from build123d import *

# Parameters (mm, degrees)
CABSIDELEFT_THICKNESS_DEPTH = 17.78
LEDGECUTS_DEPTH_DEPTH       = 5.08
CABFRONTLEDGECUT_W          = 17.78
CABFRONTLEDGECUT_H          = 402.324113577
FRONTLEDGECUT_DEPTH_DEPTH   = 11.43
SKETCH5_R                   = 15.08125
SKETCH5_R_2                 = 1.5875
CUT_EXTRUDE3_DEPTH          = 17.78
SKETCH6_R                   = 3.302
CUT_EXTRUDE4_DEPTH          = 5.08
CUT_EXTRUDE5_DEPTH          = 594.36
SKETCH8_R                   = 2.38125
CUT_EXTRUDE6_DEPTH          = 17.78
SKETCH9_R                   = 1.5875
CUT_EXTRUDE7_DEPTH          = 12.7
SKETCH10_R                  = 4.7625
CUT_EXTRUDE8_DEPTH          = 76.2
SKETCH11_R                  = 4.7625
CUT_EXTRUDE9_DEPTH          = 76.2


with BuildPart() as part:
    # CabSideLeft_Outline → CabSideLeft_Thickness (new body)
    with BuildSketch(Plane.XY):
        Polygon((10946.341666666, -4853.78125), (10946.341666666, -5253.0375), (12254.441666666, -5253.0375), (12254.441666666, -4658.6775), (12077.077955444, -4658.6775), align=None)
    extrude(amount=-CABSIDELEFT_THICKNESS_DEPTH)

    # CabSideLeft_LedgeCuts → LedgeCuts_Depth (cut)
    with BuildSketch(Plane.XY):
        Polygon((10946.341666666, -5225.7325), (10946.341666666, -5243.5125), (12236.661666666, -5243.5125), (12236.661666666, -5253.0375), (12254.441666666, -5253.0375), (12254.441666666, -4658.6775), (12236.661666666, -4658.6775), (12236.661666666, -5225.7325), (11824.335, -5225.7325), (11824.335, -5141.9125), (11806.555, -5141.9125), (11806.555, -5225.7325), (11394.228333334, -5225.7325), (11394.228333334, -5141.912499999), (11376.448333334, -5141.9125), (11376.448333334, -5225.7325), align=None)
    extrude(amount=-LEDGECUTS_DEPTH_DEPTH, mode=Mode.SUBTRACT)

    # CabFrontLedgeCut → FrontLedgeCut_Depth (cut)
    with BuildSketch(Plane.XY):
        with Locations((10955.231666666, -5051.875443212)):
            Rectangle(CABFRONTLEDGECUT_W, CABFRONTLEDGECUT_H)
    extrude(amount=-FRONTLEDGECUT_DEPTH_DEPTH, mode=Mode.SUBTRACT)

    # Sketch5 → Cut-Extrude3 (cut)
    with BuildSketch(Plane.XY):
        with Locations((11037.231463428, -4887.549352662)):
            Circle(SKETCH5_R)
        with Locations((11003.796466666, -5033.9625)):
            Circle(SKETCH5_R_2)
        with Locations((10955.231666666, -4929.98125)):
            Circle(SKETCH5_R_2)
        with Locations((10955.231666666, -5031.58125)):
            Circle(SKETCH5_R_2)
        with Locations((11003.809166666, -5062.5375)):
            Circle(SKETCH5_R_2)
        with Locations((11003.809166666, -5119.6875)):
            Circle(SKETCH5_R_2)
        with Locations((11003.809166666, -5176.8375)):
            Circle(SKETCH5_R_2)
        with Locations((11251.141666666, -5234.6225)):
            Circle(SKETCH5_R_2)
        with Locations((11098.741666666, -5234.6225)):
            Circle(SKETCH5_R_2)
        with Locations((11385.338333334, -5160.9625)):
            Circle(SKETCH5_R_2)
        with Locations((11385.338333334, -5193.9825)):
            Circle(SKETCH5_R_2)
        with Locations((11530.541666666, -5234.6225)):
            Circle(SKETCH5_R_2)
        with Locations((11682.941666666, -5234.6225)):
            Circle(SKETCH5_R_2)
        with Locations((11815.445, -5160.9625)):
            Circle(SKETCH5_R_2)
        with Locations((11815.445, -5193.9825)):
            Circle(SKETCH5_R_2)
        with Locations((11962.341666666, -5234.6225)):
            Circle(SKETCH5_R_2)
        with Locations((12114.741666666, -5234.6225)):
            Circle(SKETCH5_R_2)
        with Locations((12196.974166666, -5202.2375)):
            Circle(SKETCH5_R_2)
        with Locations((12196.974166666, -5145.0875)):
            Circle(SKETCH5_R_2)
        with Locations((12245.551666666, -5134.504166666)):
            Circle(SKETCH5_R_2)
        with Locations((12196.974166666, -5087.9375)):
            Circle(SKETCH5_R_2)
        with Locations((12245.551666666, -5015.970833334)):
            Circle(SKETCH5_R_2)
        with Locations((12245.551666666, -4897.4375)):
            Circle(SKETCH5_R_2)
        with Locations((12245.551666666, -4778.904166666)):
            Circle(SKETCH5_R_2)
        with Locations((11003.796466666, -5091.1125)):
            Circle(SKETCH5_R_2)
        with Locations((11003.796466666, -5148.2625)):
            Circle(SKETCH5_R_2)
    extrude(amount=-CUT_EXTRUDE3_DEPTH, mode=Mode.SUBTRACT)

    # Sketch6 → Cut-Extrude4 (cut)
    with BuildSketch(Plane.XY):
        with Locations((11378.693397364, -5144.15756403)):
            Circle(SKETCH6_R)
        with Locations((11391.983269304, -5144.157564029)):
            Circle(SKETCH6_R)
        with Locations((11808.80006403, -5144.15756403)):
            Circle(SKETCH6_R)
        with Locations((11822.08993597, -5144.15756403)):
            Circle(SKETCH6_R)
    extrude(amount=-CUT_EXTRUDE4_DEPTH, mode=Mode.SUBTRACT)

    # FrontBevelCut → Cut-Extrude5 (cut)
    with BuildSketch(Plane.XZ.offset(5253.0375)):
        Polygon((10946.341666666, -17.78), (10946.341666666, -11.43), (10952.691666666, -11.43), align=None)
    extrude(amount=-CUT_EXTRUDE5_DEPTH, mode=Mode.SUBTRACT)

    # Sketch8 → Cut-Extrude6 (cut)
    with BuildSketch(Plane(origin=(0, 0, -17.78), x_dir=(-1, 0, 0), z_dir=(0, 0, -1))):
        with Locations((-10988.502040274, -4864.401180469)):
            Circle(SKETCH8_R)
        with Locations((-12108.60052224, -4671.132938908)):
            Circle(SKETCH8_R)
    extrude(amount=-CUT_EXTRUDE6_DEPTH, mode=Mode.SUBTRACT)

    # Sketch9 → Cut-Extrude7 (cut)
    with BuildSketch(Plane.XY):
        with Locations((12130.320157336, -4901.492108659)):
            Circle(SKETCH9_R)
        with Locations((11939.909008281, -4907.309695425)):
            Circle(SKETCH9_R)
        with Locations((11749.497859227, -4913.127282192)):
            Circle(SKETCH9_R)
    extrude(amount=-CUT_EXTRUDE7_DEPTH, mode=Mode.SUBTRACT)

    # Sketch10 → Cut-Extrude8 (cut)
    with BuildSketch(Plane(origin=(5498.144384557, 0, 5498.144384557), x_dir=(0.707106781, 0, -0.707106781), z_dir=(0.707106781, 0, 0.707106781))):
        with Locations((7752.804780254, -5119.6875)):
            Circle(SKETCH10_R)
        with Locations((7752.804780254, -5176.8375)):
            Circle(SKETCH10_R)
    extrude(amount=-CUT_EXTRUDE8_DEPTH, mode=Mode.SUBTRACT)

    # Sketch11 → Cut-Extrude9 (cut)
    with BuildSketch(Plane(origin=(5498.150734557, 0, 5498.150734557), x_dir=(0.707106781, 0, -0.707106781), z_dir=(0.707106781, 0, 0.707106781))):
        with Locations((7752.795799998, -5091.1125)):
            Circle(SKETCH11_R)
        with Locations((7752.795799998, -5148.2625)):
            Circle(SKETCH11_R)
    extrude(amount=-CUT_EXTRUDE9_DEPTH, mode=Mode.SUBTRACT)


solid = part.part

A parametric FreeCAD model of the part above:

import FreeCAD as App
import Part
import Sketcher
Q = App.Units.Quantity

doc = App.newDocument("Part")
body = doc.addObject("PartDesign::Body", "Body")

sketch1 = doc.addObject("Sketcher::SketchObject", "Sketch")
body.addObject(sketch1)
sketch1.AttachmentSupport = (doc.XY_Plane, [""])
sketch1.MapMode = "FlatFace"
sketch1.addGeometry([
    Part.LineSegment(App.Vector(10946, -4854, 0), App.Vector(10946, -5253, 0)),
    Part.LineSegment(App.Vector(10946, -5253, 0), App.Vector(12254, -5253, 0)),
    Part.LineSegment(App.Vector(12254, -5253, 0), App.Vector(12254, -4659, 0)),
    Part.LineSegment(App.Vector(12254, -4659, 0), App.Vector(12077, -4659, 0)),
    Part.LineSegment(App.Vector(12077, -4659, 0), App.Vector(10946, -4854, 0)),
], False)
sketch1.addConstraint([
    Sketcher.Constraint("Coincident", 0, 2, 1, 1),
    Sketcher.Constraint("Coincident", 1, 2, 2, 1),
    Sketcher.Constraint("Coincident", 2, 2, 3, 1),
    Sketcher.Constraint("Coincident", 3, 2, 4, 1),
    Sketcher.Constraint("Coincident", 4, 2, 0, 1),
    Sketcher.Constraint("Vertical", 0),
    Sketcher.Constraint("Horizontal", 1),
    Sketcher.Constraint("Vertical", 2),
    Sketcher.Constraint("Horizontal", 3),
    Sketcher.Constraint("DistanceX", 1, 1, 1, 2, Q("51.5 in")),
    Sketcher.Constraint("DistanceY", 2, 1, 2, 2, Q("23.4 in")),
    Sketcher.Constraint("DistanceY", 0, 2, 0, 1, Q("15.71875 in")),
    Sketcher.Constraint("Distance", 4, Q("45.175 in")),
    Sketcher.Constraint("DistanceY", 0, 2, -1, 1, Q("206.8125 in")),
    Sketcher.Constraint("DistanceX", -1, 1, 0, 2, 10946.341667),
])
pad1 = doc.addObject("PartDesign::Pad", "Pad")
body.addObject(pad1)
pad1.Profile = sketch1
pad1.Length = Q("0.7 in")
pad1.Reversed = True

sketch2 = doc.addObject("Sketcher::SketchObject", "Sketch001")
body.addObject(sketch2)
sketch2.AttachmentSupport = (doc.XY_Plane, [""])
sketch2.MapMode = "FlatFace"
sketch2.addGeometry([
    Part.LineSegment(App.Vector(10946, -5226, 0), App.Vector(10946, -5244, 0)),
    Part.LineSegment(App.Vector(10946, -5244, 0), App.Vector(12237, -5244, 0)),
    Part.LineSegment(App.Vector(12237, -5244, 0), App.Vector(12237, -5253, 0)),
    Part.LineSegment(App.Vector(12237, -5253, 0), App.Vector(12254, -5253, 0)),
    Part.LineSegment(App.Vector(12254, -5253, 0), App.Vector(12254, -4659, 0)),
    Part.LineSegment(App.Vector(12254, -4659, 0), App.Vector(12237, -4659, 0)),
    Part.LineSegment(App.Vector(12237, -4659, 0), App.Vector(12237, -5226, 0)),
    Part.LineSegment(App.Vector(12237, -5226, 0), App.Vector(11824, -5226, 0)),
    Part.LineSegment(App.Vector(11824, -5226, 0), App.Vector(11824, -5142, 0)),
    Part.LineSegment(App.Vector(11824, -5142, 0), App.Vector(11807, -5142, 0)),
    Part.LineSegment(App.Vector(11807, -5142, 0), App.Vector(11807, -5226, 0)),
    Part.LineSegment(App.Vector(11807, -5226, 0), App.Vector(11394, -5226, 0)),
    Part.LineSegment(App.Vector(11394, -5226, 0), App.Vector(11394, -5142, 0)),
    Part.LineSegment(App.Vector(11394, -5142, 0), App.Vector(11376, -5142, 0)),
    Part.LineSegment(App.Vector(11376, -5142, 0), App.Vector(11376, -5226, 0)),
    Part.LineSegment(App.Vector(11376, -5226, 0), App.Vector(10946, -5226, 0)),
], False)
sketch2.addConstraint([
    Sketcher.Constraint("Coincident", 0, 2, 1, 1),
    Sketcher.Constraint("Coincident", 1, 2, 2, 1),
    Sketcher.Constraint("Coincident", 2, 2, 3, 1),
    Sketcher.Constraint("Coincident", 3, 2, 4, 1),
    Sketcher.Constraint("Coincident", 4, 2, 5, 1),
    Sketcher.Constraint("Coincident", 5, 2, 6, 1),
    Sketcher.Constraint("Coincident", 6, 2, 7, 1),
    Sketcher.Constraint("Coincident", 7, 2, 8, 1),
    Sketcher.Constraint("Coincident", 8, 2, 9, 1),
    Sketcher.Constraint("Coincident", 9, 2, 10, 1),
    Sketcher.Constraint("Coincident", 10, 2, 11, 1),
    Sketcher.Constraint("Coincident", 11, 2, 12, 1),
    Sketcher.Constraint("Coincident", 12, 2, 13, 1),
    Sketcher.Constraint("Coincident", 13, 2, 14, 1),
    Sketcher.Constraint("Coincident", 14, 2, 15, 1),
    Sketcher.Constraint("Coincident", 15, 2, 0, 1),
    Sketcher.Constraint("Vertical", 0),
    Sketcher.Constraint("Horizontal", 1),
    Sketcher.Constraint("Vertical", 2),
    Sketcher.Constraint("Horizontal", 3),
    Sketcher.Constraint("Vertical", 4),
    Sketcher.Constraint("Horizontal", 5),
    Sketcher.Constraint("Vertical", 6),
    Sketcher.Constraint("Horizontal", 7),
    Sketcher.Constraint("Vertical", 8),
    Sketcher.Constraint("Horizontal", 9),
    Sketcher.Constraint("Vertical", 10),
    Sketcher.Constraint("Horizontal", 11),
    Sketcher.Constraint("Vertical", 12),
    Sketcher.Constraint("Horizontal", 13),
    Sketcher.Constraint("Vertical", 14),
    Sketcher.Constraint("Horizontal", 15),
    Sketcher.Constraint("Horizontal", 7, 2, 10, 2),
    Sketcher.Constraint("Horizontal", 9, 2, 12, 2),
    Sketcher.Constraint("Horizontal", 11, 2, 14, 2),
    Sketcher.Constraint("Vertical", 2, 2, 5, 2),
    Sketcher.Constraint("Equal", 5, 9),
    Sketcher.Constraint("Equal", 7, 11),
    Sketcher.Constraint("Equal", 9, 13),
    Sketcher.Constraint("Equal", 13, 0),
    Sketcher.Constraint("DistanceX", 1, 1, 1, 2, Q("50.8 in")),
    Sketcher.Constraint("DistanceX", 3, 1, 3, 2, Q("0.7 in")),
    Sketcher.Constraint("DistanceY", 4, 1, 4, 2, Q("23.4 in")),
    Sketcher.Constraint("DistanceY", 8, 1, 8, 2, Q("3.3 in")),
    Sketcher.Constraint("DistanceY", 2, 2, 2, 1, Q("0.375 in")),
    Sketcher.Constraint("DistanceY", 0, 2, -1, 1, Q("206.4375 in")),
    Sketcher.Constraint("DistanceX", -1, 1, 7, 2, Q("465.525 in")),
    Sketcher.Constraint("DistanceX", 7, 2, 7, 1, 412.326667),
])
pocket1 = doc.addObject("PartDesign::Pocket", "Pocket")
body.addObject(pocket1)
pocket1.Profile = sketch2
pocket1.Length = Q("0.2 in")

sketch3 = doc.addObject("Sketcher::SketchObject", "Sketch002")
body.addObject(sketch3)
sketch3.AttachmentSupport = (doc.XY_Plane, [""])
sketch3.MapMode = "FlatFace"
sketch3.addGeometry([
    Part.LineSegment(App.Vector(10946, -4851, 0), App.Vector(10946, -5253, 0)),
    Part.LineSegment(App.Vector(10946, -5253, 0), App.Vector(10964, -5253, 0)),
    Part.LineSegment(App.Vector(10964, -5253, 0), App.Vector(10964, -4851, 0)),
    Part.LineSegment(App.Vector(10964, -4851, 0), App.Vector(10946, -4851, 0)),
], False)
sketch3.addConstraint([
    Sketcher.Constraint("Coincident", 0, 2, 1, 1),
    Sketcher.Constraint("Coincident", 1, 2, 2, 1),
    Sketcher.Constraint("Coincident", 2, 2, 3, 1),
    Sketcher.Constraint("Coincident", 3, 2, 0, 1),
    Sketcher.Constraint("Vertical", 0),
    Sketcher.Constraint("Horizontal", 1),
    Sketcher.Constraint("Vertical", 2),
    Sketcher.Constraint("Horizontal", 3),
    Sketcher.Constraint("DistanceX", 1, 1, 1, 2, Q("0.7 in")),
    Sketcher.Constraint("DistanceY", 0, 2, -1, 1, Q("206.8125 in")),
    Sketcher.Constraint("DistanceY", 0, 2, 0, 1, 402.324114),
    Sketcher.Constraint("DistanceX", -1, 1, 0, 2, 10946.341667),
])
pocket2 = doc.addObject("PartDesign::Pocket", "Pocket001")
body.addObject(pocket2)
pocket2.Profile = sketch3
pocket2.Length = Q("0.45 in")

sketch4 = doc.addObject("Sketcher::SketchObject", "Sketch003")
body.addObject(sketch4)
sketch4.AttachmentSupport = (doc.XY_Plane, [""])
sketch4.MapMode = "FlatFace"
sketch4.addGeometry([
    Part.Circle(App.Vector(11037.2, -4887.5, 0), App.Vector(0, 0, 1), 15.1),
    Part.Circle(App.Vector(11003.8, -5034, 0), App.Vector(0, 0, 1), 1.6),
    Part.Circle(App.Vector(10955.2, -4930, 0), App.Vector(0, 0, 1), 1.6),
    Part.Circle(App.Vector(10955.2, -5031.6, 0), App.Vector(0, 0, 1), 1.6),
    Part.Circle(App.Vector(11003.8, -5062.5, 0), App.Vector(0, 0, 1), 1.6),
    Part.Circle(App.Vector(11003.8, -5119.7, 0), App.Vector(0, 0, 1), 1.6),
    Part.Circle(App.Vector(11003.8, -5176.8, 0), App.Vector(0, 0, 1), 1.6),
    Part.Circle(App.Vector(11251.1, -5234.6, 0), App.Vector(0, 0, 1), 1.6),
    Part.Circle(App.Vector(11098.7, -5234.6, 0), App.Vector(0, 0, 1), 1.6),
    Part.Circle(App.Vector(11385.3, -5161, 0), App.Vector(0, 0, 1), 1.6),
    Part.Circle(App.Vector(11385.3, -5194, 0), App.Vector(0, 0, 1), 1.6),
    Part.Circle(App.Vector(11530.5, -5234.6, 0), App.Vector(0, 0, 1), 1.6),
    Part.Circle(App.Vector(11682.9, -5234.6, 0), App.Vector(0, 0, 1), 1.6),
    Part.Circle(App.Vector(11815.4, -5161, 0), App.Vector(0, 0, 1), 1.6),
    Part.Circle(App.Vector(11815.4, -5194, 0), App.Vector(0, 0, 1), 1.6),
    Part.Circle(App.Vector(11962.3, -5234.6, 0), App.Vector(0, 0, 1), 1.6),
    Part.Circle(App.Vector(12114.7, -5234.6, 0), App.Vector(0, 0, 1), 1.6),
    Part.Circle(App.Vector(12197, -5202.2, 0), App.Vector(0, 0, 1), 1.6),
    Part.Circle(App.Vector(12197, -5145.1, 0), App.Vector(0, 0, 1), 1.6),
    Part.Circle(App.Vector(12245.6, -5134.5, 0), App.Vector(0, 0, 1), 1.6),
    Part.Circle(App.Vector(12197, -5087.9, 0), App.Vector(0, 0, 1), 1.6),
    Part.Circle(App.Vector(12245.6, -5016, 0), App.Vector(0, 0, 1), 1.6),
    Part.Circle(App.Vector(12245.6, -4897.4, 0), App.Vector(0, 0, 1), 1.6),
    Part.Circle(App.Vector(12245.6, -4778.9, 0), App.Vector(0, 0, 1), 1.6),
    Part.Circle(App.Vector(11003.8, -5091.1, 0), App.Vector(0, 0, 1), 1.6),
    Part.Circle(App.Vector(11003.8, -5148.3, 0), App.Vector(0, 0, 1), 1.6),
], False)
sketch4.addConstraint([
    Sketcher.Constraint("Equal", 1, 2),
    Sketcher.Constraint("Equal", 2, 3),
    Sketcher.Constraint("Equal", 3, 4),
    Sketcher.Constraint("Equal", 4, 5),
    Sketcher.Constraint("Equal", 5, 6),
    Sketcher.Constraint("Equal", 6, 7),
    Sketcher.Constraint("Equal", 7, 8),
    Sketcher.Constraint("Equal", 8, 9),
    Sketcher.Constraint("Equal", 9, 10),
    Sketcher.Constraint("Equal", 10, 11),
    Sketcher.Constraint("Equal", 11, 12),
    Sketcher.Constraint("Equal", 12, 13),
    Sketcher.Constraint("Equal", 13, 14),
    Sketcher.Constraint("Equal", 14, 15),
    Sketcher.Constraint("Equal", 15, 16),
    Sketcher.Constraint("Equal", 16, 17),
    Sketcher.Constraint("Equal", 17, 18),
    Sketcher.Constraint("Equal", 18, 19),
    Sketcher.Constraint("Equal", 19, 20),
    Sketcher.Constraint("Equal", 20, 21),
    Sketcher.Constraint("Equal", 21, 22),
    Sketcher.Constraint("Equal", 22, 23),
    Sketcher.Constraint("Equal", 23, 24),
    Sketcher.Constraint("Equal", 24, 25),
    Sketcher.Constraint("Horizontal", 7, 3, 8, 3),
    Sketcher.Constraint("Horizontal", 8, 3, 11, 3),
    Sketcher.Constraint("Horizontal", 11, 3, 12, 3),
    Sketcher.Constraint("Horizontal", 9, 3, 13, 3),
    Sketcher.Constraint("Horizontal", 10, 3, 14, 3),
    Sketcher.Constraint("Horizontal", 12, 3, 15, 3),
    Sketcher.Constraint("Horizontal", 15, 3, 16, 3),
    Sketcher.Constraint("Vertical", 2, 3, 3, 3),
    Sketcher.Constraint("Vertical", 4, 3, 5, 3),
    Sketcher.Constraint("Vertical", 5, 3, 6, 3),
    Sketcher.Constraint("Vertical", 9, 3, 10, 3),
    Sketcher.Constraint("Vertical", 13, 3, 14, 3),
    Sketcher.Constraint("Vertical", 17, 3, 18, 3),
    Sketcher.Constraint("Vertical", 18, 3, 20, 3),
    Sketcher.Constraint("Vertical", 19, 3, 21, 3),
    Sketcher.Constraint("Vertical", 21, 3, 22, 3),
    Sketcher.Constraint("Vertical", 22, 3, 23, 3),
    Sketcher.Constraint("Vertical", 1, 3, 24, 3),
    Sketcher.Constraint("Vertical", 24, 3, 25, 3),
    Sketcher.Constraint("Diameter", 0, Q("1.1875 in")),
    Sketcher.Constraint("Diameter", 1, Q("0.125 in")),
    Sketcher.Constraint("DistanceY", 3, 3, 2, 3, Q("4 in")),
    Sketcher.Constraint("DistanceX", 8, 3, 7, 3, Q("6 in")),
    Sketcher.Constraint("DistanceX", 7, 3, 11, 3, Q("11 in")),
    Sketcher.Constraint("DistanceX", 11, 3, 12, 3, Q("6 in")),
    Sketcher.Constraint("DistanceX", 12, 3, 15, 3, Q("11 in")),
    Sketcher.Constraint("DistanceX", 15, 3, 16, 3, Q("6 in")),
    Sketcher.Constraint("DistanceY", 17, 3, 22, 3, Q("12 in")),
    Sketcher.Constraint("DistanceY", 19, 3, 23, 3, Q("14 in")),
    Sketcher.Constraint("DistanceY", 6, 3, 4, 3, Q("4.5 in")),
    Sketcher.Constraint("DistanceY", 7, 3, 1, 3, Q("7.9 in")),
    Sketcher.Constraint("DistanceY", 7, 3, 9, 3, Q("2.9 in")),
    Sketcher.Constraint("DistanceY", 10, 3, 9, 3, Q("1.3 in")),
    Sketcher.Constraint("DistanceY", 17, 3, 20, 3, Q("4.5 in")),
    Sketcher.Constraint("DistanceY", 25, 3, 1, 3, Q("4.5 in")),
    Sketcher.Constraint("DistanceY", 5, 3, 4, 3, Q("2.25 in")),
    Sketcher.Constraint("DistanceX", 3, 3, 7, 3, Q("11.65 in")),
    Sketcher.Constraint("DistanceY", 17, 3, 18, 3, Q("2.25 in")),
    Sketcher.Constraint("DistanceX", 16, 3, 19, 3, Q("5.15 in")),
    Sketcher.Constraint("DistanceY", 24, 3, 1, 3, Q("2.25 in")),
    Sketcher.Constraint("DistanceY", 1, 3, -1, 1, Q("198.1875 in")),
    Sketcher.Constraint("DistanceY", 2, 3, -1, 1, Q("194.09375 in")),
    Sketcher.Constraint("DistanceY", 4, 3, -1, 1, Q("199.3125 in")),
    Sketcher.Constraint("DistanceX", -1, 1, 13, 3, Q("465.175 in")),
    Sketcher.Constraint("DistanceY", 17, 3, -1, 1, Q("204.8125 in")),
    Sketcher.Constraint("DistanceX", 2, 3, 1, 3, Q("1.912 in")),
    Sketcher.Constraint("DistanceX", 1, 3, 4, 3, Q("0.0005 in")),
    Sketcher.Constraint("DistanceX", 16, 3, 17, 3, Q("3.2375 in")),
    Sketcher.Constraint("DistanceX", -1, 1, 0, 3, 11037.231463),
    Sketcher.Constraint("DistanceY", 0, 3, -1, 1, 4887.549353),
    Sketcher.Constraint("DistanceX", -1, 1, 1, 3, 11003.796467),
    Sketcher.Constraint("DistanceX", -1, 1, 9, 3, 11385.338333),
    Sketcher.Constraint("DistanceY", 19, 3, -1, 1, 5134.504167),
    Sketcher.Constraint("DistanceY", 21, 3, -1, 1, 5015.970833),
])
pocket3 = doc.addObject("PartDesign::Pocket", "Pocket002")
body.addObject(pocket3)
pocket3.Profile = sketch4
pocket3.Length = Q("0.7 in")

sketch5 = doc.addObject("Sketcher::SketchObject", "Sketch004")
body.addObject(sketch5)
sketch5.AttachmentSupport = (doc.XY_Plane, [""])
sketch5.MapMode = "FlatFace"
sketch5.addGeometry([
    Part.Circle(App.Vector(11378.7, -5144.2, 0), App.Vector(0, 0, 1), 3.3),
    Part.Circle(App.Vector(11392, -5144.2, 0), App.Vector(0, 0, 1), 3.3),
    Part.Circle(App.Vector(11808.8, -5144.2, 0), App.Vector(0, 0, 1), 3.3),
    Part.Circle(App.Vector(11822.1, -5144.2, 0), App.Vector(0, 0, 1), 3.3),
], False)
sketch5.addConstraint([
    Sketcher.Constraint("Equal", 0, 1),
    Sketcher.Constraint("Equal", 1, 2),
    Sketcher.Constraint("Equal", 2, 3),
    Sketcher.Constraint("Horizontal", 0, 3, 1, 3),
    Sketcher.Constraint("Horizontal", 1, 3, 2, 3),
    Sketcher.Constraint("Horizontal", 2, 3, 3, 3),
    Sketcher.Constraint("Diameter", 0, Q("0.26 in")),
    Sketcher.Constraint("DistanceX", -1, 1, 1, 3, 11391.983269),
    Sketcher.Constraint("DistanceX", 0, 3, 1, 3, 13.289872),
    Sketcher.Constraint("DistanceX", 2, 3, 3, 3, 13.289872),
    Sketcher.Constraint("DistanceX", 0, 3, 3, 3, 443.396539),
    Sketcher.Constraint("DistanceY", 0, 3, -1, 1, 5144.157564),
])
pocket4 = doc.addObject("PartDesign::Pocket", "Pocket003")
body.addObject(pocket4)
pocket4.Profile = sketch5
pocket4.Length = Q("0.2 in")

sketch6 = doc.addObject("Sketcher::SketchObject", "Sketch005")
body.addObject(sketch6)
sketch6.AttachmentSupport = (doc.XZ_Plane, [""])
sketch6.MapMode = "FlatFace"
sketch6.AttachmentOffset = App.Placement(App.Vector(0, 0, 206.8125 * 25.4), App.Rotation())
sketch6.addGeometry([
    Part.LineSegment(App.Vector(10946, -11, 0), App.Vector(10946, -18, 0)),
    Part.LineSegment(App.Vector(10946, -18, 0), App.Vector(10953, -11, 0)),
    Part.LineSegment(App.Vector(10953, -11, 0), App.Vector(10946, -11, 0)),
], False)
sketch6.addConstraint([
    Sketcher.Constraint("Coincident", 0, 2, 1, 1),
    Sketcher.Constraint("Coincident", 1, 2, 2, 1),
    Sketcher.Constraint("Coincident", 2, 2, 0, 1),
    Sketcher.Constraint("Vertical", 0),
    Sketcher.Constraint("Horizontal", 2),
    Sketcher.Constraint("Equal", 2, 0),
    Sketcher.Constraint("DistanceX", 2, 2, 2, 1, Q("0.25 in")),
    Sketcher.Constraint("DistanceY", 0, 2, -1, 1, Q("0.7 in")),
    Sketcher.Constraint("DistanceX", -1, 1, 0, 2, 10946.341667),
])
pocket5 = doc.addObject("PartDesign::Pocket", "Pocket004")
body.addObject(pocket5)
pocket5.Profile = sketch6
pocket5.Length = Q("23.4 in")

sketch7 = doc.addObject("Sketcher::SketchObject", "Sketch006")
body.addObject(sketch7)
sketch7.AttachmentSupport = (doc.XY_Plane, [""])
sketch7.MapMode = "FlatFace"
sketch7.AttachmentOffset = App.Placement(App.Vector(0, 0, -0.7 * 25.4), App.Rotation())
sketch7.addGeometry([
    Part.Circle(App.Vector(10988.5, -4864.4, 0), App.Vector(0, 0, 1), 2.4),
    Part.Circle(App.Vector(12108.6, -4671.1, 0), App.Vector(0, 0, 1), 2.4),
], False)
sketch7.addConstraint([
    Sketcher.Constraint("Equal", 0, 1),
    Sketcher.Constraint("Diameter", 0, Q("0.1875 in")),
    Sketcher.Constraint("DistanceX", -1, 1, 0, 3, 10988.50204),
    Sketcher.Constraint("DistanceY", 0, 3, -1, 1, 4864.40118),
    Sketcher.Constraint("DistanceY", 1, 3, -1, 1, 4671.132939),
    Sketcher.Constraint("DistanceX", 0, 3, 1, 3, 1120.098482),
])
pocket6 = doc.addObject("PartDesign::Pocket", "Pocket005")
body.addObject(pocket6)
pocket6.Profile = sketch7
pocket6.Length = Q("0.7 in")
pocket6.Reversed = True

sketch8 = doc.addObject("Sketcher::SketchObject", "Sketch007")
body.addObject(sketch8)
sketch8.AttachmentSupport = (doc.XY_Plane, [""])
sketch8.MapMode = "FlatFace"
sketch8.addGeometry([
    Part.Circle(App.Vector(12130.3, -4901.5, 0), App.Vector(0, 0, 1), 1.6),
    Part.Circle(App.Vector(11939.9, -4907.3, 0), App.Vector(0, 0, 1), 1.6),
    Part.Circle(App.Vector(11749.5, -4913.1, 0), App.Vector(0, 0, 1), 1.6),
], False)
sketch8.addConstraint([
    Sketcher.Constraint("Equal", 0, 1),
    Sketcher.Constraint("Equal", 1, 2),
    Sketcher.Constraint("Diameter", 0, Q("0.125 in")),
    Sketcher.Constraint("DistanceX", 2, 3, 0, 3, 380.822298),
    Sketcher.Constraint("DistanceY", 0, 3, -1, 1, 4901.492109),
    Sketcher.Constraint("DistanceX", -1, 1, 1, 3, 11939.909008),
    Sketcher.Constraint("DistanceX", -1, 1, 2, 3, 11749.497859),
    Sketcher.Constraint("DistanceY", 1, 3, -1, 1, 4907.309695),
    Sketcher.Constraint("DistanceY", 2, 3, -1, 1, 4913.127282),
])
pocket7 = doc.addObject("PartDesign::Pocket", "Pocket006")
body.addObject(pocket7)
pocket7.Profile = sketch8
pocket7.Length = Q("0.5 in")

sketch9 = doc.addObject("Sketcher::SketchObject", "Sketch008")
body.addObject(sketch9)
sketch9.Placement = App.Placement(App.Vector(5498.144385, 0, 5498.144385), App.Rotation(App.Vector(0.707106781, 0, -0.707106781), App.Vector(0, 0.999999999, 0), App.Vector(0.707106781, 0, 0.707106781), "ZXY"))
sketch9.addGeometry([
    Part.Circle(App.Vector(7752.8, -5119.7, 0), App.Vector(0, 0, 1), 4.8),
    Part.Circle(App.Vector(7752.8, -5176.8, 0), App.Vector(0, 0, 1), 4.8),
], False)
sketch9.addConstraint([
    Sketcher.Constraint("Equal", 0, 1),
    Sketcher.Constraint("Vertical", 0, 3, 1, 3),
    Sketcher.Constraint("Diameter", 0, Q("0.375 in")),
    Sketcher.Constraint("DistanceY", 1, 3, 0, 3, Q("2.25 in")),
    Sketcher.Constraint("DistanceX", -1, 1, 0, 3, 7752.804776),
    Sketcher.Constraint("DistanceY", 0, 3, -1, 1, 5119.687495),
])
pocket8 = doc.addObject("PartDesign::Pocket", "Pocket007")
body.addObject(pocket8)
pocket8.Profile = sketch9
pocket8.Length = Q("3 in")

sketch10 = doc.addObject("Sketcher::SketchObject", "Sketch009")
body.addObject(sketch10)
sketch10.Placement = App.Placement(App.Vector(5498.150735, 0, 5498.150735), App.Rotation(App.Vector(0.707106781, 0, -0.707106781), App.Vector(0, 0.999999999, 0), App.Vector(0.707106781, 0, 0.707106781), "ZXY"))
sketch10.addGeometry([
    Part.Circle(App.Vector(7752.8, -5091.1, 0), App.Vector(0, 0, 1), 4.8),
    Part.Circle(App.Vector(7752.8, -5148.3, 0), App.Vector(0, 0, 1), 4.8),
], False)
sketch10.addConstraint([
    Sketcher.Constraint("Equal", 0, 1),
    Sketcher.Constraint("Vertical", 0, 3, 1, 3),
    Sketcher.Constraint("Diameter", 0, Q("0.375 in")),
    Sketcher.Constraint("DistanceY", 1, 3, 0, 3, Q("2.25 in")),
    Sketcher.Constraint("DistanceX", -1, 1, 0, 3, 7752.795796),
    Sketcher.Constraint("DistanceY", 0, 3, -1, 1, 5091.112495),
])
pocket9 = doc.addObject("PartDesign::Pocket", "Pocket008")
body.addObject(pocket9)
pocket9.Profile = sketch10
pocket9.Length = Q("3 in")

doc.recompute()
